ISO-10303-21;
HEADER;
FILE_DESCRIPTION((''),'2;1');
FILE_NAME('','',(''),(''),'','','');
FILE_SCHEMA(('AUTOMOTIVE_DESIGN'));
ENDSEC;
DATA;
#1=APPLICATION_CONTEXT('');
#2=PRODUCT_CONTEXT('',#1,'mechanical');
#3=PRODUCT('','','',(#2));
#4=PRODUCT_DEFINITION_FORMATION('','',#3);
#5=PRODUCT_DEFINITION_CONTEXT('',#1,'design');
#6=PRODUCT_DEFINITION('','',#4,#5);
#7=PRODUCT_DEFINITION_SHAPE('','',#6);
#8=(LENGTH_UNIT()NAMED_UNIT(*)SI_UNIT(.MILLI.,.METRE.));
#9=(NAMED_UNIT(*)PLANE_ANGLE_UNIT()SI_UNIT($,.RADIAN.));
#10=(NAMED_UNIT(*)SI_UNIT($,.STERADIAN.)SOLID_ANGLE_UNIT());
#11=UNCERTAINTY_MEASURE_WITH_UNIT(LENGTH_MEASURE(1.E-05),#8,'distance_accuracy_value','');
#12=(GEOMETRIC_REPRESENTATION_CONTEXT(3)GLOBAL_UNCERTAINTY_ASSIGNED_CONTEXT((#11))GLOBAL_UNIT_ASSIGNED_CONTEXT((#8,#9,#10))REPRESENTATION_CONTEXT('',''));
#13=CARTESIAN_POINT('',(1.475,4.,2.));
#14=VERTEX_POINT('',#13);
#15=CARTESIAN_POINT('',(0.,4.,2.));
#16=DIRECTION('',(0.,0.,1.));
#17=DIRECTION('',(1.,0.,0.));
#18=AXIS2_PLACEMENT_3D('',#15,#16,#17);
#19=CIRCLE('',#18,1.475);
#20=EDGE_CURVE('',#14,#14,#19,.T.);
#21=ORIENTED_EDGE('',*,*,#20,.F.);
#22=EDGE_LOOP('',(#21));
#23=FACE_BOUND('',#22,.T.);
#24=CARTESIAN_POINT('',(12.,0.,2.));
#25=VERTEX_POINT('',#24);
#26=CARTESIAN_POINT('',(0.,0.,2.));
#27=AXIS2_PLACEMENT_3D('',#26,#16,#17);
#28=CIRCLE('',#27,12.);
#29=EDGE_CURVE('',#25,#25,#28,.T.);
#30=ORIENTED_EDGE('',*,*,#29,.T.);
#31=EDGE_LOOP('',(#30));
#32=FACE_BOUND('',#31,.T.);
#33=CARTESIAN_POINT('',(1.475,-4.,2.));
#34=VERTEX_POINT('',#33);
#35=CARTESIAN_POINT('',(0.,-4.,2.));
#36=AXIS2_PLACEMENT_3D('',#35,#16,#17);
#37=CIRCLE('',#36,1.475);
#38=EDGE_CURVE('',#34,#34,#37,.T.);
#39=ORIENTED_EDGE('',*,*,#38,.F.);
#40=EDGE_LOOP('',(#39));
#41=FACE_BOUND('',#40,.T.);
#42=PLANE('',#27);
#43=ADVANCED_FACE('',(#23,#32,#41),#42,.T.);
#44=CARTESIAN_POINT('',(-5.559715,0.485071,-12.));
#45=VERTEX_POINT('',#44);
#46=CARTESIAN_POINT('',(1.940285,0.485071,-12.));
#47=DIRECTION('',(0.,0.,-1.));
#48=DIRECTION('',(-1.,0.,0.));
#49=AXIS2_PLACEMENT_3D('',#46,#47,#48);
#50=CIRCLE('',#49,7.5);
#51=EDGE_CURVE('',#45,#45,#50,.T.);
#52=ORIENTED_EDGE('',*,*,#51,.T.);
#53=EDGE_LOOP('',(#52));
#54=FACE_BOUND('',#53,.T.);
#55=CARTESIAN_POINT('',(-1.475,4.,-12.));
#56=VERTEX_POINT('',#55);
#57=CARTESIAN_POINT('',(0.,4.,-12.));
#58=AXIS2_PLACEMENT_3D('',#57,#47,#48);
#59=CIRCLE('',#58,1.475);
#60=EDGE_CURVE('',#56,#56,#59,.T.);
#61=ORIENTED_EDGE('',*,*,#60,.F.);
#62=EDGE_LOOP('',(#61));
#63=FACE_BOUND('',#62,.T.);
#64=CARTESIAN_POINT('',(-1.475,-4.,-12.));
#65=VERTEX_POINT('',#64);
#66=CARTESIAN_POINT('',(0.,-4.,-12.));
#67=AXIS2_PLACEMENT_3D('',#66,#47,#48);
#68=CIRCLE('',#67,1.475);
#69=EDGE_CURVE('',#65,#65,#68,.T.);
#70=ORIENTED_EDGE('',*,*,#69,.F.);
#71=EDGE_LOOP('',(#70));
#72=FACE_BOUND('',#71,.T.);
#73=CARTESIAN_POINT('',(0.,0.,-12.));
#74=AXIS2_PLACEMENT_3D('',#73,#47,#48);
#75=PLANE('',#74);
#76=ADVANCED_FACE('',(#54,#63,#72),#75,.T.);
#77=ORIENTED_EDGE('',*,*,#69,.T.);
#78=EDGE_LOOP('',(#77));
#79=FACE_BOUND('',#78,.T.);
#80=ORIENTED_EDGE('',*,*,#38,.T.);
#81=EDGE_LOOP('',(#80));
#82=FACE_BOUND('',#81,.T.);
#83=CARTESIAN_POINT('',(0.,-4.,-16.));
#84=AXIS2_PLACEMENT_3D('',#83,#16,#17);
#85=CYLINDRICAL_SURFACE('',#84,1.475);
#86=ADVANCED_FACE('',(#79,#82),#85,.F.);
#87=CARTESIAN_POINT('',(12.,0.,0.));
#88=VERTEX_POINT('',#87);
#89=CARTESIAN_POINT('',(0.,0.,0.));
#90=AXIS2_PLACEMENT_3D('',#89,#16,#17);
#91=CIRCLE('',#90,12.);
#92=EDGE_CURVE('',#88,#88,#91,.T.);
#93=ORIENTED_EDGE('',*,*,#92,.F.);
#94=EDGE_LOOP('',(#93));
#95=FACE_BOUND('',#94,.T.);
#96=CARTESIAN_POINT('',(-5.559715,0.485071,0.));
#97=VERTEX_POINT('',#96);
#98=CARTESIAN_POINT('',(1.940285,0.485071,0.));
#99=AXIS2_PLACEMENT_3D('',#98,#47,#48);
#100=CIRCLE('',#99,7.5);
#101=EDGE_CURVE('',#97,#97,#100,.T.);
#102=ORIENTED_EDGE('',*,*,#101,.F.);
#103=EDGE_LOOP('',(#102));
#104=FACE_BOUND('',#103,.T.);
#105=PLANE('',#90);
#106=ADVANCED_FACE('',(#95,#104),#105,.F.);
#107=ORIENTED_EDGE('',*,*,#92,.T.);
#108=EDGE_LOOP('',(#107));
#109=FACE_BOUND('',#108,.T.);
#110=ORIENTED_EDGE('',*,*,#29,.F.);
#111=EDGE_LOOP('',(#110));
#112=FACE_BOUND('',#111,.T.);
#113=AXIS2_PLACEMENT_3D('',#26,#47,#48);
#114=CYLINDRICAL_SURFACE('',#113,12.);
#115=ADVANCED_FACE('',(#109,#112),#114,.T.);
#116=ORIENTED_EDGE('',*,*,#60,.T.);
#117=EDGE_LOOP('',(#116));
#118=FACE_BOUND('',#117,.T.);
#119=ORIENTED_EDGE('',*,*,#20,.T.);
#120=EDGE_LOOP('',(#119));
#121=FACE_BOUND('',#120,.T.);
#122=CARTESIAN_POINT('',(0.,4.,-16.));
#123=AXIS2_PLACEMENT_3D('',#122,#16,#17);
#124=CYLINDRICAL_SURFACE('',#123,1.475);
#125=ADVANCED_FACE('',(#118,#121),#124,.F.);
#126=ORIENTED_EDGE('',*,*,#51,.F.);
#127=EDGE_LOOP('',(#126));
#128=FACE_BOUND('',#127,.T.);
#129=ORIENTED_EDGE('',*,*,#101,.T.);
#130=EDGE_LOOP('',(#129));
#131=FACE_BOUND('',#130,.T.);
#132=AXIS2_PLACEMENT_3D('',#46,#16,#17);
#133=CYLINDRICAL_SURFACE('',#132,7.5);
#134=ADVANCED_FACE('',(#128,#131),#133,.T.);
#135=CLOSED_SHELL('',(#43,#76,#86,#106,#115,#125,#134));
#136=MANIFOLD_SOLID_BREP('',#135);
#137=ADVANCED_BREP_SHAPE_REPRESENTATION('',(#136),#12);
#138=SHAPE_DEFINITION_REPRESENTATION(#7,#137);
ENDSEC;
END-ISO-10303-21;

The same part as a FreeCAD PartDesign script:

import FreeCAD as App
import Part
import Sketcher

V = App.Vector
Q = App.Units.Quantity

doc = App.newDocument("Part")
body = doc.addObject("PartDesign::Body", "Body")

# Sketch on XY plane
sketch1 = doc.addObject("Sketcher::SketchObject", "Sketch")
body.addObject(sketch1)
sketch1.AttachmentSupport = (doc.XY_Plane, [""])
sketch1.MapMode = "FlatFace"
sketch1.addGeometry(Part.Circle(V(0, 0, 0), V(0, 0, 1), 12), False)
sketch1.addConstraint([
    Sketcher.Constraint("Coincident", 0, 3, -1, 1),
    Sketcher.Constraint("Diameter", 0, Q("24 mm")),
])
pad1 = doc.addObject("PartDesign::Pad", "Pad")
body.addObject(pad1)
pad1.Profile = sketch1
pad1.Length = 2

# Sketch on XY plane
sketch2 = doc.addObject("Sketcher::SketchObject", "Sketch001")
body.addObject(sketch2)
sketch2.AttachmentSupport = (doc.XY_Plane, [""])
sketch2.MapMode = "FlatFace"
sketch2.addGeometry(Part.Circle(V(2, 0, 0), V(0, 0, 1), 8), False)
sketch2.addConstraint([
    Sketcher.Constraint("Diameter", 0, Q("15 mm")),
    Sketcher.Constraint("DistanceY", -1, 1, 0, 3, Q("0.485071 mm")),
    Sketcher.Constraint("DistanceX", -1, 1, 0, 3, Q("1.940285 mm")),
])
pad2 = doc.addObject("PartDesign::Pad", "Pad001")
body.addObject(pad2)
pad2.Profile = sketch2
pad2.Length = 12
pad2.Reversed = True

# Sketch on XY plane
sketch3 = doc.addObject("Sketcher::SketchObject", "Sketch002")
body.addObject(sketch3)
sketch3.AttachmentSupport = (doc.XY_Plane, [""])
sketch3.MapMode = "FlatFace"
sketch3.AttachmentOffset = App.Placement(V(0, 0, 2), App.Rotation())
sketch3.addGeometry([
    Part.Circle(V(0, 4, 0), V(0, 0, 1), 1.4),
    Part.Circle(V(0, -4, 0), V(0, 0, 1), 1.4),
], False)
sketch3.addConstraint([
    Sketcher.Constraint("Equal", 0, 1),
    Sketcher.Constraint("Symmetric", 0, 3, 1, 3, -1, 1),
    Sketcher.Constraint("PointOnObject", 0, 3, -2),
    Sketcher.Constraint("Diameter", 0, Q("2.7 mm")),
    Sketcher.Constraint("DistanceY", -1, 1, 0, 3, Q("4 mm")),
])
pocket1 = doc.addObject("PartDesign::Pocket", "Pocket")
body.addObject(pocket1)
pocket1.Profile = sketch3
pocket1.Type = "ThroughAll"

# Sketch on XY plane
sketch4 = doc.addObject("Sketcher::SketchObject", "Sketch003")
body.addObject(sketch4)
sketch4.AttachmentSupport = (doc.XY_Plane, [""])
sketch4.MapMode = "FlatFace"
sketch4.AttachmentOffset = App.Placement(V(0, 0, 2), App.Rotation())
sketch4.addGeometry([
    Part.Circle(V(0, 4, 0), V(0, 0, 1), 1.5),
    Part.Circle(V(0, -4, 0), V(0, 0, 1), 1.5),
], False)
sketch4.addConstraint([
    Sketcher.Constraint("Equal", 0, 1),
    Sketcher.Constraint("Symmetric", 0, 3, 1, 3, -1, 1),
    Sketcher.Constraint("PointOnObject", 0, 3, -2),
    Sketcher.Constraint("Diameter", 0, Q("2.95 mm")),
    Sketcher.Constraint("DistanceY", -1, 1, 0, 3, Q("4 mm")),
])
pocket2 = doc.addObject("PartDesign::Pocket", "Pocket001")
body.addObject(pocket2)
pocket2.Profile = sketch4
pocket2.Length = 18

doc.recompute()
